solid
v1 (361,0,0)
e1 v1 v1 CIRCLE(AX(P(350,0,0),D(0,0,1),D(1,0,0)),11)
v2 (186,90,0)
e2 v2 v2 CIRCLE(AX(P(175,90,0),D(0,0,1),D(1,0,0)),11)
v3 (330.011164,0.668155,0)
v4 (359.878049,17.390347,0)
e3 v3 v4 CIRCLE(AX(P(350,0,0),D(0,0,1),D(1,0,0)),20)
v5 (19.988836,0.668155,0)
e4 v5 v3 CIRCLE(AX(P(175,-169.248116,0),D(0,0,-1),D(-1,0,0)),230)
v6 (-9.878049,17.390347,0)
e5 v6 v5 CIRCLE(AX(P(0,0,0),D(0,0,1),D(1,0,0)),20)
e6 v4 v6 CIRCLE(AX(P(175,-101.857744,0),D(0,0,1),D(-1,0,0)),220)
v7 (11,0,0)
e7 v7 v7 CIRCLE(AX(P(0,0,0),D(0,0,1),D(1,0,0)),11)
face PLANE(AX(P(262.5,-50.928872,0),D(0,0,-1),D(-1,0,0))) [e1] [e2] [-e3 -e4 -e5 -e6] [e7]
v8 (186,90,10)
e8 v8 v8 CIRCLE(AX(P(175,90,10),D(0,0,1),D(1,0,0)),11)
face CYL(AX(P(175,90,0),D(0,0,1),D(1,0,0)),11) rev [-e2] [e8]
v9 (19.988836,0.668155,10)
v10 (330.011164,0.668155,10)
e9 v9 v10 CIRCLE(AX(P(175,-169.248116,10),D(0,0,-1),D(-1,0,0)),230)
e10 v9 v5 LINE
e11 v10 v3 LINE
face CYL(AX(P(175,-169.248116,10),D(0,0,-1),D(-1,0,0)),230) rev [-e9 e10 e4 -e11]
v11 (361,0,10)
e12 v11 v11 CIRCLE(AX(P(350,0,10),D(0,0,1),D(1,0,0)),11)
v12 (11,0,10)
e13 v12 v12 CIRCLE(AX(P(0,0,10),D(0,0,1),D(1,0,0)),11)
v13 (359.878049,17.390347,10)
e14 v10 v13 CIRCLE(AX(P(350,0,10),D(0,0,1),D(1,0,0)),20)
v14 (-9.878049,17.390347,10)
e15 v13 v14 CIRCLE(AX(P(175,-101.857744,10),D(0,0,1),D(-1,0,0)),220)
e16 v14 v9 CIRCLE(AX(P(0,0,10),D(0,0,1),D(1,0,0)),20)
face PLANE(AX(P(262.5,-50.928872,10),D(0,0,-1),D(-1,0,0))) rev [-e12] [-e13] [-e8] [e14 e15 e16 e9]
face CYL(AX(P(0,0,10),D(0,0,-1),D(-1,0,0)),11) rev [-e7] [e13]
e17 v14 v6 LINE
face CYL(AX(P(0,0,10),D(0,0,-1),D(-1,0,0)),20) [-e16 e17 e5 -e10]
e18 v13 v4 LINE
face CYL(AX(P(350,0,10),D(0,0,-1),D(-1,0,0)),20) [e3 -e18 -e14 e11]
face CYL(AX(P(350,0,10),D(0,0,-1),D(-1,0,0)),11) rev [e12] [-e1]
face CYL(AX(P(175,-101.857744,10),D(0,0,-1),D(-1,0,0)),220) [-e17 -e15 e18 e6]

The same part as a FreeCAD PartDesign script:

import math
import FreeCAD as App
import Part
import Sketcher
Q = App.Units.Quantity

doc = App.newDocument("Part")
body = doc.addObject("PartDesign::Body", "Body")

# Sketch on XY plane
sketch1 = body.newObject("Sketcher::SketchObject", "Sketch")
sketch1.AttachmentSupport = (doc.getObject("XY_Plane"), [""])
sketch1.MapMode = "FlatFace"
sketch1.addGeometry([
    Part.ArcOfCircle(Part.Circle(App.Vector(0, 0, 0), App.Vector(0, 0, 1), 20), math.radians(119.597402), math.radians(361.91448)),  # 0
    Part.ArcOfCircle(Part.Circle(App.Vector(175, -169.248116, 0), App.Vector(0, 0, 1), 230), math.radians(47.626437), math.radians(132.373563)),  # 1
    Part.ArcOfCircle(Part.Circle(App.Vector(350, 0, 0), App.Vector(0, 0, 1), 20), math.radians(178.08552), math.radians(420.402598)),  # 2
    Part.ArcOfCircle(Part.Circle(App.Vector(175, -101.857744, 0), App.Vector(0, 0, 1), 220), math.radians(32.822399), math.radians(147.177601)),  # 3
    Part.Circle(App.Vector(0, 0, 0), App.Vector(0, 0, 1), 11),  # 4
    Part.Circle(App.Vector(350, 0, 0), App.Vector(0, 0, 1), 11),  # 5
], False)
sketch1.addConstraint([
    Sketcher.Constraint("Coincident", 0, 2, 1, 2),
    Sketcher.Constraint("Coincident", 1, 1, 2, 1),
    Sketcher.Constraint("Coincident", 2, 2, 3, 1),
    Sketcher.Constraint("Coincident", 3, 2, 0, 1),
    Sketcher.Constraint("Coincident", 0, 3, -1, 1),
    Sketcher.Constraint("Coincident", 4, 3, -1, 1),
    Sketcher.Constraint("Coincident", 5, 3, 2, 3),
    Sketcher.Constraint("Equal", 0, 2),
    Sketcher.Constraint("Equal", 4, 5),
    Sketcher.Constraint("PointOnObject", 2, 3, -1),
    Sketcher.Constraint("Horizontal", 0, 2, 1, 1),
    Sketcher.Constraint("Horizontal", 2, 2, 3, 2),
    Sketcher.Constraint("Diameter", 4, Q("22 mm")),
    Sketcher.Constraint("Radius", 0, Q("20 mm")),
    Sketcher.Constraint("Radius", 1, Q("230 mm")),
    Sketcher.Constraint("Radius", 3, Q("220 mm")),
    Sketcher.Constraint("DistanceX", -1, 1, 1, 3, Q("175 mm")),
    Sketcher.Constraint("DistanceY", 3, 3, 0, 2, Q("102.525899 mm")),
    Sketcher.Constraint("DistanceX", -1, 1, 2, 2, Q("359.878049 mm")),
])
pad1 = body.newObject("PartDesign::Pad", "Pad")
pad1.Profile = sketch1
pad1.Length = 10

# Sketch on XY plane
sketch2 = body.newObject("Sketcher::SketchObject", "Sketch001")
sketch2.AttachmentSupport = (doc.getObject("XY_Plane"), [""])
sketch2.MapMode = "FlatFace"
sketch2.AttachmentOffset = App.Placement(App.Vector(0, 0, 10), App.Rotation())
sketch2.addGeometry(Part.Circle(App.Vector(175, 90, 0), App.Vector(0, 0, 1), 11), False)
sketch2.addConstraint([
    Sketcher.Constraint("Diameter", 0, Q("22 mm")),
    Sketcher.Constraint("DistanceX", -1, 1, 0, 3, Q("175 mm")),
    Sketcher.Constraint("DistanceY", -1, 1, 0, 3, Q("90 mm")),
])
pocket1 = body.newObject("PartDesign::Pocket", "Pocket")
pocket1.Profile = sketch2
pocket1.Length = 10

doc.recompute()
